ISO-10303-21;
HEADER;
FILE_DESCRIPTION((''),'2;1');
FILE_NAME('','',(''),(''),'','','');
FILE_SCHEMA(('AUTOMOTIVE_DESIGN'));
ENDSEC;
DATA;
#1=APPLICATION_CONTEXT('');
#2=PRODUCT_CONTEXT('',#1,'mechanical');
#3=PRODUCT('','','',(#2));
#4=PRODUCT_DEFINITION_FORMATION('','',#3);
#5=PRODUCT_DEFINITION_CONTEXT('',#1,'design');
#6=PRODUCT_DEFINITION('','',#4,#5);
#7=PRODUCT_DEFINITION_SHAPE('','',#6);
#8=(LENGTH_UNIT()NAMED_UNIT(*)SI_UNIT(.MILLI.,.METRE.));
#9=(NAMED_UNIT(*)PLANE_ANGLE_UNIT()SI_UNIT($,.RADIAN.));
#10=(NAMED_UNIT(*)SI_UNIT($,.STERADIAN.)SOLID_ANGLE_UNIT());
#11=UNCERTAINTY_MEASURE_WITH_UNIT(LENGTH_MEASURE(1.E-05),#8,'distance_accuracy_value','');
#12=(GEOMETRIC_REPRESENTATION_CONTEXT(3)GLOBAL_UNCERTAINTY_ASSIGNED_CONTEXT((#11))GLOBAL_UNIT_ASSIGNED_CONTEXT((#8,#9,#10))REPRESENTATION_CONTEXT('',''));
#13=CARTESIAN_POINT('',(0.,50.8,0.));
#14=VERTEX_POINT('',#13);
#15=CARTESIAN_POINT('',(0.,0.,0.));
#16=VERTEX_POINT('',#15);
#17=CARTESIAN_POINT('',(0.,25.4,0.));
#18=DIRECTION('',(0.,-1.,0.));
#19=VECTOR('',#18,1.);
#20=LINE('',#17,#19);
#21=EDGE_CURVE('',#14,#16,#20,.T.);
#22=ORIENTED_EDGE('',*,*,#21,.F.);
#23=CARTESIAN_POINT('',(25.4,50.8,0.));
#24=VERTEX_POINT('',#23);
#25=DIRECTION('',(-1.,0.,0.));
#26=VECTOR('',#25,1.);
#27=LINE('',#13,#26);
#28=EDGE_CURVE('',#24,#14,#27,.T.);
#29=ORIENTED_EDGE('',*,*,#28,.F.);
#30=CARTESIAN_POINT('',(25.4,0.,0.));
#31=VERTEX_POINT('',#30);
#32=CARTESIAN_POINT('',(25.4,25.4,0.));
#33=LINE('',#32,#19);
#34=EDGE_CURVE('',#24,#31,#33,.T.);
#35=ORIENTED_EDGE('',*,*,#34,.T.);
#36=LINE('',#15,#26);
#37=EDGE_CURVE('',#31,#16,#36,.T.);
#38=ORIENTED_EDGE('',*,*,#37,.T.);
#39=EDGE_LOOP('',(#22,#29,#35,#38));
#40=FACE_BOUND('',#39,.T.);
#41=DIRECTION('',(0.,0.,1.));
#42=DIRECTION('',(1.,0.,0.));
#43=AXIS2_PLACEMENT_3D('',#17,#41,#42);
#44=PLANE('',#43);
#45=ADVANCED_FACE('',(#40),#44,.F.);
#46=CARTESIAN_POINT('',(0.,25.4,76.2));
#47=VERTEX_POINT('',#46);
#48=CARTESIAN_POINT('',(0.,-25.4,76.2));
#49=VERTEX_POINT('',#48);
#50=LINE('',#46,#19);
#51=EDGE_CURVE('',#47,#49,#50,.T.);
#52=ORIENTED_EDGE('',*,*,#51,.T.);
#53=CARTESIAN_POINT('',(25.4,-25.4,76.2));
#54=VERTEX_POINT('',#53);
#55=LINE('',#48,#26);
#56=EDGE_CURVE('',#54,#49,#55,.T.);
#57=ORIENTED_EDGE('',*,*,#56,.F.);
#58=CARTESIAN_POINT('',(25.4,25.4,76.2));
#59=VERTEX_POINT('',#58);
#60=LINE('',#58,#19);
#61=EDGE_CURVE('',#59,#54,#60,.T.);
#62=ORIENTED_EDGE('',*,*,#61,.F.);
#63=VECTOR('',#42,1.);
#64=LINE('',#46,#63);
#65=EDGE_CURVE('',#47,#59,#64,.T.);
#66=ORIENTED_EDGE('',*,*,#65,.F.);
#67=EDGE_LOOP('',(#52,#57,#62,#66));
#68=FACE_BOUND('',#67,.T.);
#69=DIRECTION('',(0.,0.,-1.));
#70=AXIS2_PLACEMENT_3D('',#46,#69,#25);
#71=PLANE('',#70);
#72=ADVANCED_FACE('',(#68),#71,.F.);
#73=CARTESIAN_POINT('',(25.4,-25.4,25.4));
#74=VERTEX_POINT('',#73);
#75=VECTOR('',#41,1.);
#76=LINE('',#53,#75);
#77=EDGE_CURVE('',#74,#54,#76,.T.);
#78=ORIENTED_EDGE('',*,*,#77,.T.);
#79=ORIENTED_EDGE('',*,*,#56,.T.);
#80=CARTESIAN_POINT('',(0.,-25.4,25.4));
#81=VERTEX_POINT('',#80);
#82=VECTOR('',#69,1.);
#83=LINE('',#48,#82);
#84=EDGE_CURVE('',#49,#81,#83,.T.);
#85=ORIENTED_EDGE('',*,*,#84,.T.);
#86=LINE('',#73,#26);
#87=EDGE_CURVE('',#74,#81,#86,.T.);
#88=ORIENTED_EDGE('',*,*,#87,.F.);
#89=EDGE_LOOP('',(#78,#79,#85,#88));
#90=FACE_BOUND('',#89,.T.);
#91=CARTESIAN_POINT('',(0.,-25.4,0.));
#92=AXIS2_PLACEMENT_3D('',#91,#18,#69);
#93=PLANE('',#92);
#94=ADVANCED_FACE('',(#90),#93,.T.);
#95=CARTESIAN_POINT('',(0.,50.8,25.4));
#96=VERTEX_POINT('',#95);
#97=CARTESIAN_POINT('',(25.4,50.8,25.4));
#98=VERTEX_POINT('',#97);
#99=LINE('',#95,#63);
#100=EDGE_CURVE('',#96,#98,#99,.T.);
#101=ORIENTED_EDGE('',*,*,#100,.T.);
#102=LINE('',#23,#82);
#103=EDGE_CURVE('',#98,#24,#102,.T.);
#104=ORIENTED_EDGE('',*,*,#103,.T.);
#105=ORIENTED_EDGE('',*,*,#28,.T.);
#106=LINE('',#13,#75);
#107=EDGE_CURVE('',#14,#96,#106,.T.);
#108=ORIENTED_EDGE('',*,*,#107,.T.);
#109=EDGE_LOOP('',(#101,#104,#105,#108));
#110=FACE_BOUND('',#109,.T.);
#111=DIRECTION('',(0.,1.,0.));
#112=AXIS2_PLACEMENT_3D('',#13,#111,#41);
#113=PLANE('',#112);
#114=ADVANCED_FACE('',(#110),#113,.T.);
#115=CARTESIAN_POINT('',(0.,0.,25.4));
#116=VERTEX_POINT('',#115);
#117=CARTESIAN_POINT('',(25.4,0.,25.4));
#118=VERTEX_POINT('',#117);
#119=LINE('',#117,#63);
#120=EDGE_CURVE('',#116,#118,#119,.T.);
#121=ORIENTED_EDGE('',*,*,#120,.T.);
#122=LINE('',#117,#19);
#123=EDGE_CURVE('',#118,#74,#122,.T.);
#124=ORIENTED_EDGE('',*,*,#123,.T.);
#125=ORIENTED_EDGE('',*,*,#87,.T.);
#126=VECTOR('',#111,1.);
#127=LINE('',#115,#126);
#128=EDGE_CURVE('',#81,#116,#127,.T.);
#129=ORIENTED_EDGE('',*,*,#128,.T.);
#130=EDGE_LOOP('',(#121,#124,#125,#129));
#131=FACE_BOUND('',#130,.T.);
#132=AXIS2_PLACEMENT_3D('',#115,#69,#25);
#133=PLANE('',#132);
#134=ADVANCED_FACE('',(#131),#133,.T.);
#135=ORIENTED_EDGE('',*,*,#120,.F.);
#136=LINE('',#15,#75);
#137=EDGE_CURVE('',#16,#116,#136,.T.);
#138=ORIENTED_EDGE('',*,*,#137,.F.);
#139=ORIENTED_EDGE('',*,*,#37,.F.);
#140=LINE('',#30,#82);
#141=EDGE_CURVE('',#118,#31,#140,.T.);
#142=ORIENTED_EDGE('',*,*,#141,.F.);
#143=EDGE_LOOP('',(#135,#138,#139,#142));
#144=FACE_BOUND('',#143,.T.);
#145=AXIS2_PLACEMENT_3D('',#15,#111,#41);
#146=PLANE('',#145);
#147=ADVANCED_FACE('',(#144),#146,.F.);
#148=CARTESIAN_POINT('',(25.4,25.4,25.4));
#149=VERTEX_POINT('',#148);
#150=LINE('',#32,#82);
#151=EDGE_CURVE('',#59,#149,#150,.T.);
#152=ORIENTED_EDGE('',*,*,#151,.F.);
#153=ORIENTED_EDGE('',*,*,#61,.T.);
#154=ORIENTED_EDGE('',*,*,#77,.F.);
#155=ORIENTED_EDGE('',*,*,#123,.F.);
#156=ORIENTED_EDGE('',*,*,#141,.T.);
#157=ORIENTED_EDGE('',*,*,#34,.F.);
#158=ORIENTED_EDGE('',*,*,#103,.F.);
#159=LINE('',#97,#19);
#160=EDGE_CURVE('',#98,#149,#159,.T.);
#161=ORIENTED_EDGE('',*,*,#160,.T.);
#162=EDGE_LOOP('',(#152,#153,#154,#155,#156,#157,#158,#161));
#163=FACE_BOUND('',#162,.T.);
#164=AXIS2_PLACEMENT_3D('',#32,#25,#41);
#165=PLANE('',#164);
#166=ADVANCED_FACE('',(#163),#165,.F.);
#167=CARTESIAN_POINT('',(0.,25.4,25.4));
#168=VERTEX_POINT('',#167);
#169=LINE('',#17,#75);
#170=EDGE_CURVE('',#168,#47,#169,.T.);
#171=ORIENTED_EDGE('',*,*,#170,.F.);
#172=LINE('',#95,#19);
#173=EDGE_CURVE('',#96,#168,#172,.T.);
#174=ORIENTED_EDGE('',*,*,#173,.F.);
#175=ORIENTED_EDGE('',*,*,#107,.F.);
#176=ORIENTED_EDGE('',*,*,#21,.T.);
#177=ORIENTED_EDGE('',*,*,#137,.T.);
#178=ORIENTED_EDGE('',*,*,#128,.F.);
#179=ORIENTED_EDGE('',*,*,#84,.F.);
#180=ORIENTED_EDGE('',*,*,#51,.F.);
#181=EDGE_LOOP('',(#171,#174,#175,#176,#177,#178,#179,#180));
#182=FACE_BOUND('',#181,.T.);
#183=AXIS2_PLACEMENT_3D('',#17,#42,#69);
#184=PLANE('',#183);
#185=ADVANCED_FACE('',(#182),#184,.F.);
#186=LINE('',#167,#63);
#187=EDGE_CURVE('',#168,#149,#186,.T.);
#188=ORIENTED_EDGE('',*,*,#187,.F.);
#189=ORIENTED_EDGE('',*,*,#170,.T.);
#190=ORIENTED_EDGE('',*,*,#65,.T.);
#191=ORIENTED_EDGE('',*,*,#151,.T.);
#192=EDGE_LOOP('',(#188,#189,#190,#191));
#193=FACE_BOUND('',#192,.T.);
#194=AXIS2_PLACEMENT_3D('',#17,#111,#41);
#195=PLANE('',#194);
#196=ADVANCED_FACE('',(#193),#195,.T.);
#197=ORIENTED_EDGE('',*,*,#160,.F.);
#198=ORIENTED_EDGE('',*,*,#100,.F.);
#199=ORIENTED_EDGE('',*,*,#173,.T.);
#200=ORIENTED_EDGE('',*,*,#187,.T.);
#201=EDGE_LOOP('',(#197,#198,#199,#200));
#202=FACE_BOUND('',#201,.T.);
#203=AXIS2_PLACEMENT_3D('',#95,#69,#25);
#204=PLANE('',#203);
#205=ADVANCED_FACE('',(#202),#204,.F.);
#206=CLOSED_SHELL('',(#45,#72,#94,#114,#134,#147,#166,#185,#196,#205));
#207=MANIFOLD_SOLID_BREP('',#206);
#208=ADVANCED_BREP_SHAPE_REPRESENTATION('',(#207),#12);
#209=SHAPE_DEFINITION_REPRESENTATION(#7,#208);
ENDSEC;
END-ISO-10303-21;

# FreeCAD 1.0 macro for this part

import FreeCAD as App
import Part
import Sketcher

V = App.Vector
Q = App.Units.Quantity


def add_polygon(sketch, points):
    """Adds a closed chain of lines whose ends are joined by coincident constraints."""
    first, n = sketch.GeometryCount, len(points)
    for a, b in zip(points, points[1:] + points[:1]):
        sketch.addGeometry(Part.LineSegment(App.Vector(*a, 0), App.Vector(*b, 0)), False)
    for i in range(n):
        sketch.addConstraint(Sketcher.Constraint("Coincident", first + i, 2, first + (i + 1) % n, 1))

doc = App.newDocument("Part")
body = doc.addObject("PartDesign::Body", "Body")

# Sketch on XZ plane
sketch1 = doc.addObject("Sketcher::SketchObject", "Sketch")
body.addObject(sketch1)
sketch1.AttachmentSupport = (doc.XZ_Plane, [""])
sketch1.MapMode = "FlatFace"
add_polygon(sketch1, [(0, 0), (0, 76), (25, 76), (25, 0)])  # lines 0-3
sketch1.addConstraint([
    Sketcher.Constraint("Vertical", 0),
    Sketcher.Constraint("Horizontal", 1),
    Sketcher.Constraint("Vertical", 2),
    Sketcher.Constraint("Horizontal", 3),
    Sketcher.Constraint("Coincident", 3, 2, -1, 1),
    Sketcher.Constraint("DistanceX", 1, 1, 1, 2, Q("1 in")),
    Sketcher.Constraint("DistanceY", 0, 1, 0, 2, Q("3 in")),
])
pad1 = doc.addObject("PartDesign::Pad", "Pad")
body.addObject(pad1)
pad1.Profile = sketch1
pad1.Length = Q("1 in")
pad1.Reversed = True

# Sketch on XZ plane
sketch2 = doc.addObject("Sketcher::SketchObject", "Sketch001")
body.addObject(sketch2)
sketch2.AttachmentSupport = (doc.XZ_Plane, [""])
sketch2.MapMode = "FlatFace"
sketch2.AttachmentOffset = App.Placement(V(0, 0, -1 * 25.4), App.Rotation())
add_polygon(sketch2, [(0, 0), (0, 25), (25, 25), (25, 0)])  # lines 0-3
sketch2.addConstraint([
    Sketcher.Constraint("Vertical", 0),
    Sketcher.Constraint("Horizontal", 1),
    Sketcher.Constraint("Vertical", 2),
    Sketcher.Constraint("Horizontal", 3),
    Sketcher.Constraint("Coincident", 3, 2, -1, 1),
    Sketcher.Constraint("Equal", 3, 0),
    Sketcher.Constraint("DistanceX", 1, 1, 1, 2, Q("1 in")),
])
pad2 = doc.addObject("PartDesign::Pad", "Pad001")
body.addObject(pad2)
pad2.Profile = sketch2
pad2.Length = Q("1 in")
pad2.Reversed = True

# Sketch on XZ plane
sketch3 = doc.addObject("Sketcher::SketchObject", "Sketch002")
body.addObject(sketch3)
sketch3.AttachmentSupport = (doc.XZ_Plane, [""])
sketch3.MapMode = "FlatFace"
add_polygon(sketch3, [(25, 51), (25, 76), (0, 76), (0, 51)])  # lines 0-3
sketch3.addConstraint([
    Sketcher.Constraint("Vertical", 0),
    Sketcher.Constraint("Horizontal", 1),
    Sketcher.Constraint("Vertical", 2),
    Sketcher.Constraint("Horizontal", 3),
    Sketcher.Constraint("PointOnObject", 1, 2, -2),
    Sketcher.Constraint("Equal", 3, 0),
    Sketcher.Constraint("DistanceX", 1, 2, 1, 1, Q("1 in")),
    Sketcher.Constraint("DistanceY", -1, 1, 0, 2, Q("3 in")),
])
pad3 = doc.addObject("PartDesign::Pad", "Pad002")
body.addObject(pad3)
pad3.Profile = sketch3
pad3.Length = Q("1 in")

# Sketch on XY plane
sketch4 = doc.addObject("Sketcher::SketchObject", "Sketch003")
body.addObject(sketch4)
sketch4.AttachmentSupport = (doc.XY_Plane, [""])
sketch4.MapMode = "FlatFace"
sketch4.AttachmentOffset = App.Placement(V(0, 0, 2 * 25.4), App.Rotation())
add_polygon(sketch4, [(25, 0), (25, -25), (0, -25), (0, 0)])  # lines 0-3
sketch4.addConstraint([
    Sketcher.Constraint("Vertical", 0),
    Sketcher.Constraint("Horizontal", 1),
    Sketcher.Constraint("Vertical", 2),
    Sketcher.Constraint("Horizontal", 3),
    Sketcher.Constraint("Coincident", 2, 2, -1, 1),
    Sketcher.Constraint("Equal", 3, 0),
    Sketcher.Constraint("DistanceX", 1, 2, 1, 1, Q("1 in")),
])
pad4 = doc.addObject("PartDesign::Pad", "Pad003")
body.addObject(pad4)
pad4.Profile = sketch4
pad4.Length = Q("1 in")
pad4.Reversed = True

doc.recompute()
